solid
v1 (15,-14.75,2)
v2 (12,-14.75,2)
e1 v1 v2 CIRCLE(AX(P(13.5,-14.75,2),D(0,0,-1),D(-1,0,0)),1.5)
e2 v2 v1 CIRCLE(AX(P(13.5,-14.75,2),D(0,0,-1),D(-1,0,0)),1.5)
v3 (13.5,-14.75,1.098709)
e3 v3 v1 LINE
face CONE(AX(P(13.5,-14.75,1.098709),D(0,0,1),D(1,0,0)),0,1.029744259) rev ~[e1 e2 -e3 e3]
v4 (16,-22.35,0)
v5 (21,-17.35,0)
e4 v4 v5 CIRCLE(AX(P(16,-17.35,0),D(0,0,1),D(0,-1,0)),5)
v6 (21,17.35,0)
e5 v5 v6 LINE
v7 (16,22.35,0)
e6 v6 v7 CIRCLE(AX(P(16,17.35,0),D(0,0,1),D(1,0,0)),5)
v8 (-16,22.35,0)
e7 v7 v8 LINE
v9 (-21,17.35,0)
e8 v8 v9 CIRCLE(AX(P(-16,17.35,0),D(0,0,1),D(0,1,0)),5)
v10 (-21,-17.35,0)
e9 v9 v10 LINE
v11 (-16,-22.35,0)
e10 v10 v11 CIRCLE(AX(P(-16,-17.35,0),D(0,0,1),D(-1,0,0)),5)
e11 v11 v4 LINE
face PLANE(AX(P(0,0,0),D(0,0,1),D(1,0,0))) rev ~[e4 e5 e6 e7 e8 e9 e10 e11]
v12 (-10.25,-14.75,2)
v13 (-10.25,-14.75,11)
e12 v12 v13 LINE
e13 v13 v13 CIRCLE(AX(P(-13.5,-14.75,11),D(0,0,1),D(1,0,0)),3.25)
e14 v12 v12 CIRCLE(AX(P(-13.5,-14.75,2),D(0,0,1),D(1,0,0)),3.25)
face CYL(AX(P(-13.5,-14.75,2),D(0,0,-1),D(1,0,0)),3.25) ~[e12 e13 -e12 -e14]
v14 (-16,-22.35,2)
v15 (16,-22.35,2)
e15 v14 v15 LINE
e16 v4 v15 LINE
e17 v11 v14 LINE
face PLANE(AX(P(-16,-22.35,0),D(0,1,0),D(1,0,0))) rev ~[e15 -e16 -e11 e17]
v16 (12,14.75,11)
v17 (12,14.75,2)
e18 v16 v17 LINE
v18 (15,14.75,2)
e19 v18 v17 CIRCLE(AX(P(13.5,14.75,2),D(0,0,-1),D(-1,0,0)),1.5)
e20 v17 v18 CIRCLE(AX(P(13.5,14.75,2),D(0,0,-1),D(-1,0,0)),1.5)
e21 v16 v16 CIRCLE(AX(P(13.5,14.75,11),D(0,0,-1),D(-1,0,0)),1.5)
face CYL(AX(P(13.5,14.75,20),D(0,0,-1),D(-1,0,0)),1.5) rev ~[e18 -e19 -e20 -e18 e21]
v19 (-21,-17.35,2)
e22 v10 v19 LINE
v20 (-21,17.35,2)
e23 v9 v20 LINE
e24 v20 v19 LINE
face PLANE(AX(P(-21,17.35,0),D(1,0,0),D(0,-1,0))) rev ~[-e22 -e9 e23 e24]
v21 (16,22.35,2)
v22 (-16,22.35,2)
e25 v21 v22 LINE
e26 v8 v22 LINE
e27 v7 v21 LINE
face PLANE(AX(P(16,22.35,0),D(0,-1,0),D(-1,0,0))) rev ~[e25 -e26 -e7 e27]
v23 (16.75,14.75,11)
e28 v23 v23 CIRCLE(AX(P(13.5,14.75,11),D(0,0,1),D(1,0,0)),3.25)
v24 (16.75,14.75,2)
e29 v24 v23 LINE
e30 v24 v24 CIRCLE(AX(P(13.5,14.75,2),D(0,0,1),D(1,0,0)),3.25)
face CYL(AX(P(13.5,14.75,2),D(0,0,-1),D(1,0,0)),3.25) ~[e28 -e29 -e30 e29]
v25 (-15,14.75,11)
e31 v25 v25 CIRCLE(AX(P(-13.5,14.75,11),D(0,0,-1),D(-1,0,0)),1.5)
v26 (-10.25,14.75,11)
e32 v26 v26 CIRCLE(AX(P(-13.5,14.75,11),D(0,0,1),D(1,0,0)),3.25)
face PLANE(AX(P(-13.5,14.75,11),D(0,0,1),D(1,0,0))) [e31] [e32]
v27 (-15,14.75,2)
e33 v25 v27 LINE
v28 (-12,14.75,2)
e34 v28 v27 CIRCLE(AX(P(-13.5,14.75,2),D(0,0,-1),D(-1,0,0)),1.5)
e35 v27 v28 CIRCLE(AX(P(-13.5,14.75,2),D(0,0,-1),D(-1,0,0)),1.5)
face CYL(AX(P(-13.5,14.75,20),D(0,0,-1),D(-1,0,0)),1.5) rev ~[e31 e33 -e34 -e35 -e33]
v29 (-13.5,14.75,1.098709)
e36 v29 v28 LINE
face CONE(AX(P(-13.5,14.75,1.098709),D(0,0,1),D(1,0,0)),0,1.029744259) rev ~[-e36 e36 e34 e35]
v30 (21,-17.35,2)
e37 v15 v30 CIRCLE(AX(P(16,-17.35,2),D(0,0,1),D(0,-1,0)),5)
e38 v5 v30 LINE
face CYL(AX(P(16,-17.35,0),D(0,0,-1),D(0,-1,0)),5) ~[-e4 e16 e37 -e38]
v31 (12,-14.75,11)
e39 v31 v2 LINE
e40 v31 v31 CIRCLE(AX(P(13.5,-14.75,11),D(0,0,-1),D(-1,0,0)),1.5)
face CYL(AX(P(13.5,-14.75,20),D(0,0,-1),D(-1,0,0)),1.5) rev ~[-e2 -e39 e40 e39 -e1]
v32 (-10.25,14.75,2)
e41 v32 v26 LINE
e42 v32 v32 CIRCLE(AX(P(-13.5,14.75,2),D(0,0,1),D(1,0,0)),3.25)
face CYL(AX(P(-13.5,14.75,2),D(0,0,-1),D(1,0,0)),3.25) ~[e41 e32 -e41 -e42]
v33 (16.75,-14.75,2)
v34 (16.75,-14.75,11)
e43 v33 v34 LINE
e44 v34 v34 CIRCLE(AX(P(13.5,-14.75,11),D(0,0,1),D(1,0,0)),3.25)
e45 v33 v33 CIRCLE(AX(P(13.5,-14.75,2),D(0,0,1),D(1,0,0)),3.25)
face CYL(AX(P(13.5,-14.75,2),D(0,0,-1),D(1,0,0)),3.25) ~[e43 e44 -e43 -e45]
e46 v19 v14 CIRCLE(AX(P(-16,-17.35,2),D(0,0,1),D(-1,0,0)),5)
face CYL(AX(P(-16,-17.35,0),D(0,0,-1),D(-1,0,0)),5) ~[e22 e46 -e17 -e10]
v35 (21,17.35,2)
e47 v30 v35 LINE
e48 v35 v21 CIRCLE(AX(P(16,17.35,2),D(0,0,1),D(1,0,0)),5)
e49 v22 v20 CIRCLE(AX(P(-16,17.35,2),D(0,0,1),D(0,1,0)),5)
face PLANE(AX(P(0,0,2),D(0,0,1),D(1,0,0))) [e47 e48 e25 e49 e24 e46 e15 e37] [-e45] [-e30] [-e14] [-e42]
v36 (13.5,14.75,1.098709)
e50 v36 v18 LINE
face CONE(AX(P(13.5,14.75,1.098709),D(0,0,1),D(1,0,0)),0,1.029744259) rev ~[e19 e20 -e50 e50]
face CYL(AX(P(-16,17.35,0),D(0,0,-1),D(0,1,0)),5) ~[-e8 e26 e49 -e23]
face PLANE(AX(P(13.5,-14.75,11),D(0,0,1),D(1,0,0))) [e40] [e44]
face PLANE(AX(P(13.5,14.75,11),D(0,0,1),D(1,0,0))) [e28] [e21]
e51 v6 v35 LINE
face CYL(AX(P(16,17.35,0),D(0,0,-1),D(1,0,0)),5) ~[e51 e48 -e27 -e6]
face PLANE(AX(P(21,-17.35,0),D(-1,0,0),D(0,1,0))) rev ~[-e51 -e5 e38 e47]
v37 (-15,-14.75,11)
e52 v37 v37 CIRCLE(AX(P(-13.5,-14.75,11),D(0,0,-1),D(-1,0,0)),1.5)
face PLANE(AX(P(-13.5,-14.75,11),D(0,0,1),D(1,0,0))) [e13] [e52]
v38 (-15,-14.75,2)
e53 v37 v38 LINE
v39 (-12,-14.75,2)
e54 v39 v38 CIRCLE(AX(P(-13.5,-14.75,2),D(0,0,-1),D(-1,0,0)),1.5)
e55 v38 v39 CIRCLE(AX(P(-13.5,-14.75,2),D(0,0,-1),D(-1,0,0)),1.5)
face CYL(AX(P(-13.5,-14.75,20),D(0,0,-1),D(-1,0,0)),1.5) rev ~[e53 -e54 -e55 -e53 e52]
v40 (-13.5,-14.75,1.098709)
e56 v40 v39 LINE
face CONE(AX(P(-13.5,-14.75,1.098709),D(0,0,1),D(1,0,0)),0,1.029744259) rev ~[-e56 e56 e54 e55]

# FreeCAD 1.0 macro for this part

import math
import FreeCAD as App
import Part
import Sketcher
from FreeCAD import Vector
Q = App.Units.Quantity

doc = App.newDocument("Part")
body = doc.addObject("PartDesign::Body", "Body")

sketch1 = body.newObject("Sketcher::SketchObject", "Sketch")
sketch1.AttachmentSupport = (doc.getObject("XY_Plane"), [""])
sketch1.MapMode = "FlatFace"
sketch1.addGeometry([
    Part.ArcOfCircle(Part.Circle(Vector(16, 17, 0), Vector(0, 0, 1), 5), math.radians(0), math.radians(90)),
    Part.LineSegment(Vector(16, 22, 0), Vector(-16, 22, 0)),
    Part.ArcOfCircle(Part.Circle(Vector(-16, 17, 0), Vector(0, 0, 1), 5), math.radians(90), math.radians(180)),
    Part.LineSegment(Vector(-21, 17, 0), Vector(-21, -17, 0)),
    Part.ArcOfCircle(Part.Circle(Vector(-16, -17, 0), Vector(0, 0, 1), 5), math.radians(180), math.radians(270)),
    Part.LineSegment(Vector(-16, -22, 0), Vector(16, -22, 0)),
    Part.ArcOfCircle(Part.Circle(Vector(16, -17, 0), Vector(0, 0, 1), 5), math.radians(-90), math.radians(0)),
    Part.LineSegment(Vector(21, -17, 0), Vector(21, 17, 0)),
], False)
sketch1.addConstraint([
    Sketcher.Constraint("Tangent", 0, 2, 1, 1),
    Sketcher.Constraint("Tangent", 1, 2, 2, 1),
    Sketcher.Constraint("Tangent", 2, 2, 3, 1),
    Sketcher.Constraint("Tangent", 3, 2, 4, 1),
    Sketcher.Constraint("Tangent", 4, 2, 5, 1),
    Sketcher.Constraint("Tangent", 5, 2, 6, 1),
    Sketcher.Constraint("Tangent", 6, 2, 7, 1),
    Sketcher.Constraint("Tangent", 7, 2, 0, 1),
    Sketcher.Constraint("Horizontal", 1),
    Sketcher.Constraint("Vertical", 3),
    Sketcher.Constraint("Horizontal", 5),
    Sketcher.Constraint("Vertical", 7),
    Sketcher.Constraint("Equal", 0, 2),
    Sketcher.Constraint("Equal", 2, 4),
    Sketcher.Constraint("Equal", 4, 6),
    Sketcher.Constraint("Symmetric", 0, 3, 4, 3, -1, 1),
    Sketcher.Constraint("Radius", 0, Q("5 mm")),
    Sketcher.Constraint("DistanceX", 1, 2, 1, 1, Q("32 mm")),
    Sketcher.Constraint("DistanceY", 3, 2, 3, 1, Q("34.7 mm")),
])
pad1 = body.newObject("PartDesign::Pad", "Pad")
pad1.Profile = sketch1
pad1.Length = 2

sketch2 = body.newObject("Sketcher::SketchObject", "Sketch001")
sketch2.AttachmentSupport = (doc.getObject("XY_Plane"), [""])
sketch2.MapMode = "FlatFace"
sketch2.AttachmentOffset = App.Placement(Vector(0, 0, 2), App.Rotation())
sketch2.addGeometry([
    Part.Circle(Vector(13.5, -14.8, 0), Vector(0, 0, 1), 3.2),
    Part.Circle(Vector(-13.5, 14.8, 0), Vector(0, 0, 1), 3.2),
    Part.Circle(Vector(13.5, 14.8, 0), Vector(0, 0, 1), 3.2),
    Part.Circle(Vector(-13.5, -14.8, 0), Vector(0, 0, 1), 3.2),
], False)
sketch2.addConstraint([
    Sketcher.Constraint("Equal", 0, 1),
    Sketcher.Constraint("Equal", 1, 2),
    Sketcher.Constraint("Equal", 2, 3),
    Sketcher.Constraint("Symmetric", 0, 3, 1, 3, -1, 1),
    Sketcher.Constraint("Symmetric", 2, 3, 3, 3, -1, 1),
    Sketcher.Constraint("Symmetric", 1, 3, 2, 3, -2),
    Sketcher.Constraint("Diameter", 0, Q("6.5 mm")),
    Sketcher.Constraint("DistanceX", 1, 3, 0, 3, Q("27 mm")),
    Sketcher.Constraint("DistanceY", 0, 3, 1, 3, Q("29.5 mm")),
])
pad2 = body.newObject("PartDesign::Pad", "Pad001")
pad2.Profile = sketch2
pad2.Length = 9

sketch3 = body.newObject("Sketcher::SketchObject", "Sketch002")
sketch3.AttachmentSupport = (doc.getObject("XY_Plane"), [""])
sketch3.MapMode = "FlatFace"
sketch3.AttachmentOffset = App.Placement(Vector(0, 0, 11), App.Rotation())
sketch3.addGeometry([
    Part.Circle(Vector(-13.5, 14.8, 0), Vector(0, 0, 1), 1.5),
    Part.Circle(Vector(13.5, 14.8, 0), Vector(0, 0, 1), 1.5),
    Part.Circle(Vector(13.5, -14.8, 0), Vector(0, 0, 1), 1.5),
    Part.Circle(Vector(-13.5, -14.8, 0), Vector(0, 0, 1), 1.5),
], False)
sketch3.addConstraint([
    Sketcher.Constraint("Equal", 0, 1),
    Sketcher.Constraint("Equal", 1, 2),
    Sketcher.Constraint("Equal", 2, 3),
    Sketcher.Constraint("Symmetric", 0, 3, 2, 3, -1, 1),
    Sketcher.Constraint("Symmetric", 1, 3, 3, 3, -1, 1),
    Sketcher.Constraint("Symmetric", 0, 3, 1, 3, -2),
    Sketcher.Constraint("Diameter", 0, Q("3 mm")),
    Sketcher.Constraint("DistanceX", 0, 3, 1, 3, Q("27 mm")),
    Sketcher.Constraint("DistanceY", 2, 3, 1, 3, Q("29.5 mm")),
])
doc.recompute()
hole = body.newObject("PartDesign::Hole", "Hole")
hole.Profile = sketch3
hole.ThreadType = "None"
hole.Diameter = 3
hole.DepthType = "Dimension"
hole.Depth = 9
hole.DrillPoint = "Angled"
hole.DrillPointAngle = 118

doc.recompute()
